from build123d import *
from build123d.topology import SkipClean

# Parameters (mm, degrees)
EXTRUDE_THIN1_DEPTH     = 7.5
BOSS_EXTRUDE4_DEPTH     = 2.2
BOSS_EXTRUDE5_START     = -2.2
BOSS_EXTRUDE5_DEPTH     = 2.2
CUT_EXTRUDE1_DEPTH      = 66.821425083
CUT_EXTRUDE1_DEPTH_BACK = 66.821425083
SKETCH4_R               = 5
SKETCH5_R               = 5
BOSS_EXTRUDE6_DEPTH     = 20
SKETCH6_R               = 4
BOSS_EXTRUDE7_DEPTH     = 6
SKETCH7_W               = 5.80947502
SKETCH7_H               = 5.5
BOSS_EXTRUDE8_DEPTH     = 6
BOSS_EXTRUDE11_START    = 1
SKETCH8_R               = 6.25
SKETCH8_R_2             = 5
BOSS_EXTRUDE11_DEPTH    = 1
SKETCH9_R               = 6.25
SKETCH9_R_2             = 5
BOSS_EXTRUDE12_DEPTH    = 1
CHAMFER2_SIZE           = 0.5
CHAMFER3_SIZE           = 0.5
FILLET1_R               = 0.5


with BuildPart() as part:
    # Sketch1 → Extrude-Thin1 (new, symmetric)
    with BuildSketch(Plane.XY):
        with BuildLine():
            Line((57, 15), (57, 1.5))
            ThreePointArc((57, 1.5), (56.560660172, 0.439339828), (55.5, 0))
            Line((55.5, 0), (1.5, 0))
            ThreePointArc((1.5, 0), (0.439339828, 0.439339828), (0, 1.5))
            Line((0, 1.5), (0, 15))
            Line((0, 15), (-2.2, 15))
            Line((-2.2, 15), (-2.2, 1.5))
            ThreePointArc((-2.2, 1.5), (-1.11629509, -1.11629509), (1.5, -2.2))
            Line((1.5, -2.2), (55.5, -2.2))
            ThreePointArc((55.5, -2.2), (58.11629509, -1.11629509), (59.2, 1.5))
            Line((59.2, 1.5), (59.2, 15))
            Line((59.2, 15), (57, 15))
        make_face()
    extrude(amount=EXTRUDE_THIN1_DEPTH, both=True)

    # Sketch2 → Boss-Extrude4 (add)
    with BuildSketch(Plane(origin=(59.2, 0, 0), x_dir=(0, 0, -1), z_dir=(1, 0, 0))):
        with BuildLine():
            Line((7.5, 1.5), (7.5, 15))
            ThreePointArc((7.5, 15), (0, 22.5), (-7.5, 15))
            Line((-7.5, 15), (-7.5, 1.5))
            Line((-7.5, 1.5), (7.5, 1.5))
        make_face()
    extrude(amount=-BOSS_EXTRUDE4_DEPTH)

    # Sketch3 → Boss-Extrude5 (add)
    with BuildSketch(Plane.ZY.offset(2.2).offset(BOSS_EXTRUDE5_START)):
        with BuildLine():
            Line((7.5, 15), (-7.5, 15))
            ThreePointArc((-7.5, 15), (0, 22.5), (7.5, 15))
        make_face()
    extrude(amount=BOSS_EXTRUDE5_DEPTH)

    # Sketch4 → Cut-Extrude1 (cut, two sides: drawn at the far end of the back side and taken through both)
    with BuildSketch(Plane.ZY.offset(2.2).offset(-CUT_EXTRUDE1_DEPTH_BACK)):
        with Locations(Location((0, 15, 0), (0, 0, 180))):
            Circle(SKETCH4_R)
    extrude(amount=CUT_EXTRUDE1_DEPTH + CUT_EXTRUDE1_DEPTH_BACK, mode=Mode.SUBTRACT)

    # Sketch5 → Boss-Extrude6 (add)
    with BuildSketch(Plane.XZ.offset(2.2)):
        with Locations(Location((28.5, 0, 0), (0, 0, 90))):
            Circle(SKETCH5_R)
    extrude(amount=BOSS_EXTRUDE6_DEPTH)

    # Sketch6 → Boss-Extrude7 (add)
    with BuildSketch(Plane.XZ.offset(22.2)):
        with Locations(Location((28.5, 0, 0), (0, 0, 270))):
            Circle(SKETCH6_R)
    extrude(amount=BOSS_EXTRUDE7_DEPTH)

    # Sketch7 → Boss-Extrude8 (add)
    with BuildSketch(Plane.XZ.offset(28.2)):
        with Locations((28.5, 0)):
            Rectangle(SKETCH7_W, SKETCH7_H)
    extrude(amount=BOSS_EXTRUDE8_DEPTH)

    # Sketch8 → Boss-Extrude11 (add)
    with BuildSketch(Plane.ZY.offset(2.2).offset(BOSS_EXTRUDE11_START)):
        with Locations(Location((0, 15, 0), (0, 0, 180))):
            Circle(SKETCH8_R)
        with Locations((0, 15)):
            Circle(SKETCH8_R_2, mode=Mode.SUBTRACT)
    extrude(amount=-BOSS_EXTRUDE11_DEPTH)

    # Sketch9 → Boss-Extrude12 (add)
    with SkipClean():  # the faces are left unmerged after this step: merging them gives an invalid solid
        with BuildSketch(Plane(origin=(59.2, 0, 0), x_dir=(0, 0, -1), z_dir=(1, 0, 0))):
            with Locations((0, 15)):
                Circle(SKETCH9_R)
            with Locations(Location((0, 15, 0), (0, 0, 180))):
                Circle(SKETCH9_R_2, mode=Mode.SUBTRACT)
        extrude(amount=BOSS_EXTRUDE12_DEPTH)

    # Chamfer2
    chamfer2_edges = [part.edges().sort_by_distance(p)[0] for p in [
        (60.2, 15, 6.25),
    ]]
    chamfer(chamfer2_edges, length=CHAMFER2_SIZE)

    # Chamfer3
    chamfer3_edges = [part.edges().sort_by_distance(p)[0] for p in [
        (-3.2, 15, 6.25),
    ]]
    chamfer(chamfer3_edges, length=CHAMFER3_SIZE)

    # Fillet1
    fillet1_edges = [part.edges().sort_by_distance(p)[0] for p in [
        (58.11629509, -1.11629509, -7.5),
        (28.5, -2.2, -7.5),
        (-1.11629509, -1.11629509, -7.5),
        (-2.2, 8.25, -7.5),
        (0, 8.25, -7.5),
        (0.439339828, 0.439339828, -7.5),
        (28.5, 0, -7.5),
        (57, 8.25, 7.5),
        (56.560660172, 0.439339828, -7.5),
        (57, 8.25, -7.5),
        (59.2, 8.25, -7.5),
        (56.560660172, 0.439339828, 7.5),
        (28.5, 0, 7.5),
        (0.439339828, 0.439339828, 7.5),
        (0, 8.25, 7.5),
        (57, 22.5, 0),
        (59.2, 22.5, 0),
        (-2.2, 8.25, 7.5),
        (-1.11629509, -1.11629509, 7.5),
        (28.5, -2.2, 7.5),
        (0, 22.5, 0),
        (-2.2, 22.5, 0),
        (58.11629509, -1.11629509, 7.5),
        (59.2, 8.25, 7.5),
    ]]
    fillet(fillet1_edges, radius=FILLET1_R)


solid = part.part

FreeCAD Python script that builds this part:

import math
import FreeCAD as App
import Part
import Sketcher

V = App.Vector


def edges_at(feature, points):
    """Names of the edges that pass closest to the given points."""
    edges = feature.Shape.Edges
    near = lambda p: min(range(len(edges)), key=lambda i: edges[i].distToShape(Part.Vertex(*p))[0])
    return sorted({f"Edge{near(p) + 1}" for p in points})


def add_polygon(sketch, points):
    """Adds a closed chain of lines whose ends are joined by coincident constraints."""
    first, n = sketch.GeometryCount, len(points)
    for a, b in zip(points, points[1:] + points[:1]):
        sketch.addGeometry(Part.LineSegment(App.Vector(*a, 0), App.Vector(*b, 0)), False)
    for i in range(n):
        sketch.addConstraint(Sketcher.Constraint("Coincident", first + i, 2, first + (i + 1) % n, 1))

doc = App.newDocument("Part")
body = doc.addObject("PartDesign::Body", "Body")

# Sketch on XY plane
sketch1 = doc.addObject("Sketcher::SketchObject", "Sketch")
body.addObject(sketch1)
sketch1.AttachmentSupport = (doc.XY_Plane, [""])
sketch1.MapMode = "FlatFace"
sketch1.addGeometry(Part.LineSegment(V(57, 15, 0), V(57, 1.5, 0)), False)
sketch1.addGeometry(Part.ArcOfCircle(Part.Circle(V(55.5, 1.5, 0), V(0, 0, 1), 1.5), math.radians(-90), math.radians(0)), False)
sketch1.addGeometry(Part.LineSegment(V(55.5, 0, 0), V(1.5, 0, 0)), False)
sketch1.addGeometry(Part.ArcOfCircle(Part.Circle(V(1.5, 1.5, 0), V(0, 0, 1), 1.5), math.radians(180), math.radians(270)), False)
sketch1.addGeometry(Part.LineSegment(V(0, 1.5, 0), V(0, 15, 0)), False)
sketch1.addGeometry(Part.LineSegment(V(0, 15, 0), V(-2.2, 15, 0)), False)
sketch1.addGeometry(Part.LineSegment(V(-2.2, 15, 0), V(-2.2, 1.5, 0)), False)
sketch1.addGeometry(Part.ArcOfCircle(Part.Circle(V(1.5, 1.5, 0), V(0, 0, 1), 3.7), math.radians(-180), math.radians(-90)), False)
sketch1.addGeometry(Part.LineSegment(V(1.5, -2.2, 0), V(55.5, -2.2, 0)), False)
sketch1.addGeometry(Part.ArcOfCircle(Part.Circle(V(55.5, 1.5, 0), V(0, 0, 1), 3.7), math.radians(-90), math.radians(0)), False)
sketch1.addGeometry(Part.LineSegment(V(59.2, 1.5, 0), V(59.2, 15, 0)), False)
sketch1.addGeometry(Part.LineSegment(V(59.2, 15, 0), V(57, 15, 0)), False)
sketch1.addConstraint(Sketcher.Constraint("Tangent", 0, 2, 1, 2))
sketch1.addConstraint(Sketcher.Constraint("Tangent", 1, 1, 2, 1))
sketch1.addConstraint(Sketcher.Constraint("Tangent", 2, 2, 3, 2))
sketch1.addConstraint(Sketcher.Constraint("Tangent", 3, 1, 4, 1))
sketch1.addConstraint(Sketcher.Constraint("Coincident", 4, 2, 5, 1))
sketch1.addConstraint(Sketcher.Constraint("Coincident", 5, 2, 6, 1))
sketch1.addConstraint(Sketcher.Constraint("Tangent", 6, 2, 7, 1))
sketch1.addConstraint(Sketcher.Constraint("Tangent", 7, 2, 8, 1))
sketch1.addConstraint(Sketcher.Constraint("Tangent", 8, 2, 9, 1))
sketch1.addConstraint(Sketcher.Constraint("Tangent", 9, 2, 10, 1))
sketch1.addConstraint(Sketcher.Constraint("Coincident", 10, 2, 11, 1))
sketch1.addConstraint(Sketcher.Constraint("Coincident", 11, 2, 0, 1))
sketch1.addConstraint(Sketcher.Constraint("Vertical", 0))
sketch1.addConstraint(Sketcher.Constraint("Horizontal", 2))
sketch1.addConstraint(Sketcher.Constraint("Vertical", 4))
sketch1.addConstraint(Sketcher.Constraint("Horizontal", 5))
sketch1.addConstraint(Sketcher.Constraint("Vertical", 6))
sketch1.addConstraint(Sketcher.Constraint("Horizontal", 8))
sketch1.addConstraint(Sketcher.Constraint("Vertical", 10))
sketch1.addConstraint(Sketcher.Constraint("Horizontal", 11))
sketch1.addConstraint(Sketcher.Constraint("Coincident", 7, 3, 3, 3))
sketch1.addConstraint(Sketcher.Constraint("Coincident", 9, 3, 1, 3))
sketch1.addConstraint(Sketcher.Constraint("Equal", 1, 3))
sketch1.addConstraint(Sketcher.Constraint("PointOnObject", 1, 1, -1))
sketch1.addConstraint(Sketcher.Constraint("PointOnObject", 3, 1, -2))
sketch1.addConstraint(Sketcher.Constraint("Horizontal", 5, 2, 10, 2))
sketch1.addConstraint(Sketcher.Constraint("Radius", 1, 1.5))
sketch1.addConstraint(Sketcher.Constraint("Radius", 7, 3.7))
sketch1.addConstraint(Sketcher.Constraint("DistanceX", 2, 2, 2, 1, 54.0))
sketch1.addConstraint(Sketcher.Constraint("DistanceY", 0, 2, 0, 1, 13.5))
pad1 = doc.addObject("PartDesign::Pad", "Pad")
body.addObject(pad1)
pad1.Profile = sketch1
pad1.Length = 15
pad1.Midplane = True

# Sketch on YZ plane
sketch2 = doc.addObject("Sketcher::SketchObject", "Sketch001")
body.addObject(sketch2)
sketch2.AttachmentSupport = (doc.YZ_Plane, [""])
sketch2.MapMode = "FlatFace"
sketch2.AttachmentOffset = App.Placement(V(0, 0, 59.2), App.Rotation())
sketch2.addGeometry(Part.LineSegment(V(1.5, -7.5, 0), V(15, -7.5, 0)), False)
sketch2.addGeometry(Part.ArcOfCircle(Part.Circle(V(15, 0, 0), V(0, 0, 1), 7.5), math.radians(-90), math.radians(90)), False)
sketch2.addGeometry(Part.LineSegment(V(15, 7.5, 0), V(1.5, 7.5, 0)), False)
sketch2.addGeometry(Part.LineSegment(V(1.5, 7.5, 0), V(1.5, -7.5, 0)), False)
sketch2.addConstraint(Sketcher.Constraint("Tangent", 0, 2, 1, 1))
sketch2.addConstraint(Sketcher.Constraint("Tangent", 1, 2, 2, 1))
sketch2.addConstraint(Sketcher.Constraint("Coincident", 2, 2, 3, 1))
sketch2.addConstraint(Sketcher.Constraint("Coincident", 3, 2, 0, 1))
sketch2.addConstraint(Sketcher.Constraint("Horizontal", 0))
sketch2.addConstraint(Sketcher.Constraint("Horizontal", 2))
sketch2.addConstraint(Sketcher.Constraint("Vertical", 3))
sketch2.addConstraint(Sketcher.Constraint("PointOnObject", 1, 3, -1))
sketch2.addConstraint(Sketcher.Constraint("Radius", 1, 7.5))
sketch2.addConstraint(Sketcher.Constraint("DistanceX", 0, 1, 0, 2, 13.5))
sketch2.addConstraint(Sketcher.Constraint("DistanceX", -1, 1, 1, 3, 15.0))
pad2 = doc.addObject("PartDesign::Pad", "Pad001")
body.addObject(pad2)
pad2.Profile = sketch2
pad2.Length = 2.2
pad2.Reversed = True

# Sketch on YZ plane
sketch3 = doc.addObject("Sketcher::SketchObject", "Sketch002")
body.addObject(sketch3)
sketch3.AttachmentSupport = (doc.YZ_Plane, [""])
sketch3.MapMode = "FlatFace"
sketch3.addGeometry(Part.LineSegment(V(15, -7.5, 0), V(15, 7.5, 0)), False)
sketch3.addGeometry(Part.ArcOfCircle(Part.Circle(V(15, 0, 0), V(0, 0, 1), 7.5), math.radians(-90), math.radians(90)), False)
sketch3.addConstraint(Sketcher.Constraint("Coincident", 0, 1, 1, 1))
sketch3.addConstraint(Sketcher.Constraint("Coincident", 1, 2, 0, 2))
sketch3.addConstraint(Sketcher.Constraint("Vertical", 0))
sketch3.addConstraint(Sketcher.Constraint("PointOnObject", 1, 3, -1))
sketch3.addConstraint(Sketcher.Constraint("Vertical", 1, 3, 0, 1))
sketch3.addConstraint(Sketcher.Constraint("Radius", 1, 7.5))
sketch3.addConstraint(Sketcher.Constraint("DistanceX", -1, 1, 1, 3, 15.0))
pad3 = doc.addObject("PartDesign::Pad", "Pad002")
body.addObject(pad3)
pad3.Profile = sketch3
pad3.Length = 2.2
pad3.Reversed = True

# Sketch on YZ plane
sketch4 = doc.addObject("Sketcher::SketchObject", "Sketch003")
body.addObject(sketch4)
sketch4.AttachmentSupport = (doc.YZ_Plane, [""])
sketch4.MapMode = "FlatFace"
sketch4.AttachmentOffset = App.Placement(V(0, 0, -2.2), App.Rotation())
sketch4.addGeometry(Part.Circle(V(15, 0, 0), V(0, 0, 1), 5), False)
sketch4.addConstraint(Sketcher.Constraint("PointOnObject", 0, 3, -1))
sketch4.addConstraint(Sketcher.Constraint("Diameter", 0, 10.0))
sketch4.addConstraint(Sketcher.Constraint("DistanceX", -1, 1, 0, 3, 15.0))
pocket1 = doc.addObject("PartDesign::Pocket", "Pocket")
body.addObject(pocket1)
pocket1.Profile = sketch4
pocket1.Type = "ThroughAll"
pocket1.Midplane = True

# Sketch on XZ plane
sketch5 = doc.addObject("Sketcher::SketchObject", "Sketch004")
body.addObject(sketch5)
sketch5.AttachmentSupport = (doc.XZ_Plane, [""])
sketch5.MapMode = "FlatFace"
sketch5.AttachmentOffset = App.Placement(V(0, 0, 2.2), App.Rotation())
sketch5.addGeometry(Part.Circle(V(28.5, 0, 0), V(0, 0, 1), 5), False)
sketch5.addConstraint(Sketcher.Constraint("PointOnObject", 0, 3, -1))
sketch5.addConstraint(Sketcher.Constraint("Diameter", 0, 10.0))
sketch5.addConstraint(Sketcher.Constraint("DistanceX", -1, 1, 0, 3, 28.5))
pad4 = doc.addObject("PartDesign::Pad", "Pad003")
body.addObject(pad4)
pad4.Profile = sketch5
pad4.Length = 20

# Sketch on XZ plane
sketch6 = doc.addObject("Sketcher::SketchObject", "Sketch005")
body.addObject(sketch6)
sketch6.AttachmentSupport = (doc.XZ_Plane, [""])
sketch6.MapMode = "FlatFace"
sketch6.AttachmentOffset = App.Placement(V(0, 0, 22.2), App.Rotation())
sketch6.addGeometry(Part.Circle(V(28.5, 0, 0), V(0, 0, 1), 4), False)
sketch6.addConstraint(Sketcher.Constraint("PointOnObject", 0, 3, -1))
sketch6.addConstraint(Sketcher.Constraint("Diameter", 0, 8.0))
sketch6.addConstraint(Sketcher.Constraint("DistanceX", -1, 1, 0, 3, 28.5))
pad5 = doc.addObject("PartDesign::Pad", "Pad004")
body.addObject(pad5)
pad5.Profile = sketch6
pad5.Length = 6

# Sketch on XZ plane
sketch7 = doc.addObject("Sketcher::SketchObject", "Sketch006")
body.addObject(sketch7)
sketch7.AttachmentSupport = (doc.XZ_Plane, [""])
sketch7.MapMode = "FlatFace"
sketch7.AttachmentOffset = App.Placement(V(0, 0, 28.2), App.Rotation())
add_polygon(sketch7, [(25.595262, 2.75), (25.595262, -2.75), (31.404738, -2.75), (31.404738, 2.75)])  # lines 0-3
sketch7.addConstraint(Sketcher.Constraint("Vertical", 0))
sketch7.addConstraint(Sketcher.Constraint("Horizontal", 1))
sketch7.addConstraint(Sketcher.Constraint("Vertical", 2))
sketch7.addConstraint(Sketcher.Constraint("Horizontal", 3))
sketch7.addConstraint(Sketcher.Constraint("DistanceY", 0, 2, 0, 1, 5.5))
sketch7.addConstraint(Sketcher.Constraint("DistanceY", 0, 2, -1, 1, 2.75))
sketch7.addConstraint(Sketcher.Constraint("DistanceX", 1, 1, 1, 2, 5.809475))
sketch7.addConstraint(Sketcher.Constraint("DistanceX", -1, 1, 0, 2, 25.595262))
pad6 = doc.addObject("PartDesign::Pad", "Pad005")
body.addObject(pad6)
pad6.Profile = sketch7
pad6.Length = 6

# Sketch on YZ plane
sketch8 = doc.addObject("Sketcher::SketchObject", "Sketch007")
body.addObject(sketch8)
sketch8.AttachmentSupport = (doc.YZ_Plane, [""])
sketch8.MapMode = "FlatFace"
sketch8.AttachmentOffset = App.Placement(V(0, 0, -3.2), App.Rotation())
sketch8.addGeometry(Part.Circle(V(15, 0, 0), V(0, 0, 1), 6.25), False)
sketch8.addGeometry(Part.Circle(V(15, 0, 0), V(0, 0, 1), 5), False)
sketch8.addConstraint(Sketcher.Constraint("Coincident", 1, 3, 0, 3))
sketch8.addConstraint(Sketcher.Constraint("PointOnObject", 0, 3, -1))
sketch8.addConstraint(Sketcher.Constraint("Diameter", 1, 10.0))
sketch8.addConstraint(Sketcher.Constraint("Diameter", 0, 12.5))
sketch8.addConstraint(Sketcher.Constraint("DistanceX", -1, 1, 0, 3, 15.0))
pad7 = doc.addObject("PartDesign::Pad", "Pad006")
body.addObject(pad7)
pad7.Profile = sketch8
pad7.Length = 1

# Sketch on YZ plane
sketch9 = doc.addObject("Sketcher::SketchObject", "Sketch008")
body.addObject(sketch9)
sketch9.AttachmentSupport = (doc.YZ_Plane, [""])
sketch9.MapMode = "FlatFace"
sketch9.AttachmentOffset = App.Placement(V(0, 0, 59.2), App.Rotation())
sketch9.addGeometry(Part.Circle(V(15, 0, 0), V(0, 0, 1), 6.25), False)
sketch9.addGeometry(Part.Circle(V(15, 0, 0), V(0, 0, 1), 5), False)
sketch9.addConstraint(Sketcher.Constraint("Coincident", 1, 3, 0, 3))
sketch9.addConstraint(Sketcher.Constraint("PointOnObject", 0, 3, -1))
sketch9.addConstraint(Sketcher.Constraint("Diameter", 1, 10.0))
sketch9.addConstraint(Sketcher.Constraint("Diameter", 0, 12.5))
sketch9.addConstraint(Sketcher.Constraint("DistanceX", -1, 1, 0, 3, 15.0))
pad8 = doc.addObject("PartDesign::Pad", "Pad007")
body.addObject(pad8)
pad8.Profile = sketch9
pad8.Length = 1
doc.recompute()

chamfer = doc.addObject("PartDesign::Chamfer", "Chamfer")
body.addObject(chamfer)
chamfer.Base = (pad8, edges_at(pad8, [(60.2, 15, 6.25)]))
chamfer.Size = 0.5
doc.recompute()

chamfer2 = doc.addObject("PartDesign::Chamfer", "Chamfer001")
body.addObject(chamfer2)
chamfer2.Base = (chamfer, edges_at(chamfer, [(-3.2, 15, 6.25)]))
chamfer2.Size = 0.5
doc.recompute()

fillet = doc.addObject("PartDesign::Fillet", "Fillet")
body.addObject(fillet)
fillet.Base = (chamfer2, edges_at(chamfer2, [
    (58.116, -1.116, -7.5),
    (28.5, -2.2, -7.5),
    (-1.116, -1.116, -7.5),
    (-2.2, 8.25, -7.5),
    (0, 8.25, -7.5),
    (0.439, 0.439, -7.5),
    (28.5, 0, -7.5),
    (57, 8.25, 7.5),
    (56.561, 0.439, -7.5),
    (57, 8.25, -7.5),
    (59.2, 8.25, -7.5),
    (56.561, 0.439, 7.5),
    (28.5, 0, 7.5),
    (0.439, 0.439, 7.5),
    (0, 8.25, 7.5),
    (57, 22.5, 0),
    (59.2, 22.5, 0),
    (-2.2, 8.25, 7.5),
    (-1.116, -1.116, 7.5),
    (28.5, -2.2, 7.5),
    (0, 22.5, 0),
    (-2.2, 22.5, 0),
    (58.116, -1.116, 7.5),
    (59.2, 8.25, 7.5),
]))
fillet.Radius = 0.5

doc.recompute()
